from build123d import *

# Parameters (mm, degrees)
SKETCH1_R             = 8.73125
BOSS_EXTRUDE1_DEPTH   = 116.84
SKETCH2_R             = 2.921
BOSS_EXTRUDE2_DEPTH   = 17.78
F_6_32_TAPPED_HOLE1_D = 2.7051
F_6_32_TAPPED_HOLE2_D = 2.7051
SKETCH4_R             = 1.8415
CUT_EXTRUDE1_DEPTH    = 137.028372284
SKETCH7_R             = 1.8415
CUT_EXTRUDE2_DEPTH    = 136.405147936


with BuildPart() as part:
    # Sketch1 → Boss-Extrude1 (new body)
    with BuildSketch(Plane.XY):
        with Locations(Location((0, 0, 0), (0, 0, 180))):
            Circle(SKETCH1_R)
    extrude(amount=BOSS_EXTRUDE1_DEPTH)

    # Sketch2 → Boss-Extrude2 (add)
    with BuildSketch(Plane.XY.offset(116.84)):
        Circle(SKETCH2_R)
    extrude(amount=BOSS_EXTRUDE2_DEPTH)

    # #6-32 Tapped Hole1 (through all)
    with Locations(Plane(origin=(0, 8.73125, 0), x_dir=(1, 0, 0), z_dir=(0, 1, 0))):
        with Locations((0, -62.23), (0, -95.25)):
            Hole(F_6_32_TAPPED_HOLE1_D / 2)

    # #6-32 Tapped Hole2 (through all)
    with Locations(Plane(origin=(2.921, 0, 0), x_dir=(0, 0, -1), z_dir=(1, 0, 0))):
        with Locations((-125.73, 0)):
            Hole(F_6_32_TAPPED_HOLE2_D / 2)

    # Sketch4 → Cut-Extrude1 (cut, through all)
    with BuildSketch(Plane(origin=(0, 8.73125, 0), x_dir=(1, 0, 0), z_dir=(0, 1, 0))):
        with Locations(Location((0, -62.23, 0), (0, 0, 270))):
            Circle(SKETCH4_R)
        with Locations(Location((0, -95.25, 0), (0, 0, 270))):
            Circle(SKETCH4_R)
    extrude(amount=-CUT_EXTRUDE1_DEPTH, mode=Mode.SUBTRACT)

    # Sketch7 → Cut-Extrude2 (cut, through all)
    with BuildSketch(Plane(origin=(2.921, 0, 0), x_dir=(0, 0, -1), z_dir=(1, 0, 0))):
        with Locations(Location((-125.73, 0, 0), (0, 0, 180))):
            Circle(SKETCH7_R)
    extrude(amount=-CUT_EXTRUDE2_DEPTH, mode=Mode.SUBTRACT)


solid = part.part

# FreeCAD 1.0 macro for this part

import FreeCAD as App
import Part
import Sketcher
from FreeCAD import Vector
Q = App.Units.Quantity

doc = App.newDocument("Part")
params = doc.addObject("Spreadsheet::Sheet", "Params")
for row, (alias, value) in enumerate([
    ("sketch1_diameter", "0.6875 in"),
    ("pad1_length", "4.6 in"),
    ("sketch2_diameter", "0.23 in"),
    ("pad2_length", "0.7 in"),
    ("hole_diameter", "0.1065 in"),
    ("hole2_diameter", "0.1065 in"),
    ("sketch5_diameter", "0.145 in"),
    ("sketch6_diameter", "0.145 in"),
], start=1):
    params.set(f"A{row}", alias)
    params.set(f"B{row}", "=" + value)
    params.setAlias(f"B{row}", alias)

body = doc.addObject("PartDesign::Body", "Body")

sketch1 = body.newObject("Sketcher::SketchObject", "Sketch")
sketch1.AttachmentSupport = (doc.getObject("XY_Plane"), [""])
sketch1.MapMode = "FlatFace"
sketch1.addGeometry(Part.Circle(Vector(0, 0, 0), Vector(0, 0, 1), 8.73125), False)
sketch1.addConstraint([
    Sketcher.Constraint("Coincident", 0, 3, -1, 1),
    Sketcher.Constraint("Diameter", 0, Q("0.6875 in")),
])
sketch1.setExpression("Constraints[1]", "Params.sketch1_diameter")
pad1 = body.newObject("PartDesign::Pad", "Pad")
pad1.Profile = sketch1
pad1.setExpression("Length", "Params.pad1_length")

sketch2 = body.newObject("Sketcher::SketchObject", "Sketch001")
sketch2.AttachmentSupport = (doc.getObject("XY_Plane"), [""])
sketch2.MapMode = "FlatFace"
sketch2.AttachmentOffset = App.Placement(Vector(0, 0, 4.6 * 25.4), App.Rotation())
sketch2.addGeometry(Part.Circle(Vector(0, 0, 0), Vector(0, 0, 1), 2.921), False)
sketch2.addConstraint([
    Sketcher.Constraint("Coincident", 0, 3, -1, 1),
    Sketcher.Constraint("Diameter", 0, Q("0.23 in")),
])
sketch2.setExpression("Constraints[1]", "Params.sketch2_diameter")
pad2 = body.newObject("PartDesign::Pad", "Pad001")
pad2.Profile = sketch2
pad2.setExpression("Length", "Params.pad2_length")

sketch3 = body.newObject("Sketcher::SketchObject", "Sketch002")
sketch3.AttachmentSupport = (doc.getObject("XZ_Plane"), [""])
sketch3.MapMode = "FlatFace"
sketch3.AttachmentOffset = App.Placement(Vector(0, 0, -0.34375 * 25.4), App.Rotation())
sketch3.addGeometry([
    Part.Circle(Vector(0, 62.23, 0), Vector(0, 0, 1), 1.35255),
    Part.Circle(Vector(0, 95.25, 0), Vector(0, 0, 1), 1.35255),
], False)
sketch3.addConstraint([
    Sketcher.Constraint("Equal", 0, 1),
    Sketcher.Constraint("PointOnObject", 0, 3, -2),
    Sketcher.Constraint("PointOnObject", 1, 3, -2),
    Sketcher.Constraint("Diameter", 0, Q("0.1065 in")),
    Sketcher.Constraint("DistanceY", 0, 3, 1, 3, Q("1.3 in")),
    Sketcher.Constraint("DistanceY", -1, 1, 0, 3, Q("2.45 in")),
])
doc.recompute()
hole = body.newObject("PartDesign::Hole", "Hole")
hole.Profile = sketch3
hole.ThreadType = "None"
hole.setExpression("Diameter", "Params.hole_diameter")
hole.DepthType = "ThroughAll"
hole.Reversed = True

sketch4 = body.newObject("Sketcher::SketchObject", "Sketch003")
sketch4.AttachmentSupport = (doc.getObject("YZ_Plane"), [""])
sketch4.MapMode = "FlatFace"
sketch4.AttachmentOffset = App.Placement(Vector(0, 0, 0.115 * 25.4), App.Rotation())
sketch4.addGeometry(Part.Circle(Vector(0, 125.73, 0), Vector(0, 0, 1), 1.35255), False)
sketch4.addConstraint([
    Sketcher.Constraint("PointOnObject", 0, 3, -2),
    Sketcher.Constraint("Diameter", 0, Q("0.1065 in")),
    Sketcher.Constraint("DistanceY", -1, 1, 0, 3, Q("4.95 in")),
])
doc.recompute()
hole2 = body.newObject("PartDesign::Hole", "Hole001")
hole2.Profile = sketch4
hole2.ThreadType = "None"
hole2.setExpression("Diameter", "Params.hole2_diameter")
hole2.DepthType = "ThroughAll"

sketch5 = body.newObject("Sketcher::SketchObject", "Sketch004")
sketch5.AttachmentSupport = (doc.getObject("XZ_Plane"), [""])
sketch5.MapMode = "FlatFace"
sketch5.AttachmentOffset = App.Placement(Vector(0, 0, -0.34375 * 25.4), App.Rotation())
sketch5.addGeometry([
    Part.Circle(Vector(0, 62.23, 0), Vector(0, 0, 1), 1.8415),
    Part.Circle(Vector(0, 95.25, 0), Vector(0, 0, 1), 1.8415),
], False)
sketch5.addConstraint([
    Sketcher.Constraint("Equal", 0, 1),
    Sketcher.Constraint("PointOnObject", 0, 3, -2),
    Sketcher.Constraint("PointOnObject", 1, 3, -2),
    Sketcher.Constraint("Diameter", 0, Q("0.145 in")),
    Sketcher.Constraint("DistanceY", 0, 3, 1, 3, Q("1.3 in")),
    Sketcher.Constraint("DistanceY", -1, 1, 0, 3, Q("2.45 in")),
])
sketch5.setExpression("Constraints[3]", "Params.sketch5_diameter")
pocket1 = body.newObject("PartDesign::Pocket", "Pocket")
pocket1.Profile = sketch5
pocket1.Type = "ThroughAll"
pocket1.Reversed = True

sketch6 = body.newObject("Sketcher::SketchObject", "Sketch005")
sketch6.AttachmentSupport = (doc.getObject("YZ_Plane"), [""])
sketch6.MapMode = "FlatFace"
sketch6.AttachmentOffset = App.Placement(Vector(0, 0, 0.115 * 25.4), App.Rotation())
sketch6.addGeometry(Part.Circle(Vector(0, 125.73, 0), Vector(0, 0, 1), 1.8415), False)
sketch6.addConstraint([
    Sketcher.Constraint("PointOnObject", 0, 3, -2),
    Sketcher.Constraint("Diameter", 0, Q("0.145 in")),
    Sketcher.Constraint("DistanceY", -1, 1, 0, 3, Q("4.95 in")),
])
sketch6.setExpression("Constraints[1]", "Params.sketch6_diameter")
pocket2 = body.newObject("PartDesign::Pocket", "Pocket001")
pocket2.Profile = sketch6
pocket2.Type = "ThroughAll"

doc.recompute()
